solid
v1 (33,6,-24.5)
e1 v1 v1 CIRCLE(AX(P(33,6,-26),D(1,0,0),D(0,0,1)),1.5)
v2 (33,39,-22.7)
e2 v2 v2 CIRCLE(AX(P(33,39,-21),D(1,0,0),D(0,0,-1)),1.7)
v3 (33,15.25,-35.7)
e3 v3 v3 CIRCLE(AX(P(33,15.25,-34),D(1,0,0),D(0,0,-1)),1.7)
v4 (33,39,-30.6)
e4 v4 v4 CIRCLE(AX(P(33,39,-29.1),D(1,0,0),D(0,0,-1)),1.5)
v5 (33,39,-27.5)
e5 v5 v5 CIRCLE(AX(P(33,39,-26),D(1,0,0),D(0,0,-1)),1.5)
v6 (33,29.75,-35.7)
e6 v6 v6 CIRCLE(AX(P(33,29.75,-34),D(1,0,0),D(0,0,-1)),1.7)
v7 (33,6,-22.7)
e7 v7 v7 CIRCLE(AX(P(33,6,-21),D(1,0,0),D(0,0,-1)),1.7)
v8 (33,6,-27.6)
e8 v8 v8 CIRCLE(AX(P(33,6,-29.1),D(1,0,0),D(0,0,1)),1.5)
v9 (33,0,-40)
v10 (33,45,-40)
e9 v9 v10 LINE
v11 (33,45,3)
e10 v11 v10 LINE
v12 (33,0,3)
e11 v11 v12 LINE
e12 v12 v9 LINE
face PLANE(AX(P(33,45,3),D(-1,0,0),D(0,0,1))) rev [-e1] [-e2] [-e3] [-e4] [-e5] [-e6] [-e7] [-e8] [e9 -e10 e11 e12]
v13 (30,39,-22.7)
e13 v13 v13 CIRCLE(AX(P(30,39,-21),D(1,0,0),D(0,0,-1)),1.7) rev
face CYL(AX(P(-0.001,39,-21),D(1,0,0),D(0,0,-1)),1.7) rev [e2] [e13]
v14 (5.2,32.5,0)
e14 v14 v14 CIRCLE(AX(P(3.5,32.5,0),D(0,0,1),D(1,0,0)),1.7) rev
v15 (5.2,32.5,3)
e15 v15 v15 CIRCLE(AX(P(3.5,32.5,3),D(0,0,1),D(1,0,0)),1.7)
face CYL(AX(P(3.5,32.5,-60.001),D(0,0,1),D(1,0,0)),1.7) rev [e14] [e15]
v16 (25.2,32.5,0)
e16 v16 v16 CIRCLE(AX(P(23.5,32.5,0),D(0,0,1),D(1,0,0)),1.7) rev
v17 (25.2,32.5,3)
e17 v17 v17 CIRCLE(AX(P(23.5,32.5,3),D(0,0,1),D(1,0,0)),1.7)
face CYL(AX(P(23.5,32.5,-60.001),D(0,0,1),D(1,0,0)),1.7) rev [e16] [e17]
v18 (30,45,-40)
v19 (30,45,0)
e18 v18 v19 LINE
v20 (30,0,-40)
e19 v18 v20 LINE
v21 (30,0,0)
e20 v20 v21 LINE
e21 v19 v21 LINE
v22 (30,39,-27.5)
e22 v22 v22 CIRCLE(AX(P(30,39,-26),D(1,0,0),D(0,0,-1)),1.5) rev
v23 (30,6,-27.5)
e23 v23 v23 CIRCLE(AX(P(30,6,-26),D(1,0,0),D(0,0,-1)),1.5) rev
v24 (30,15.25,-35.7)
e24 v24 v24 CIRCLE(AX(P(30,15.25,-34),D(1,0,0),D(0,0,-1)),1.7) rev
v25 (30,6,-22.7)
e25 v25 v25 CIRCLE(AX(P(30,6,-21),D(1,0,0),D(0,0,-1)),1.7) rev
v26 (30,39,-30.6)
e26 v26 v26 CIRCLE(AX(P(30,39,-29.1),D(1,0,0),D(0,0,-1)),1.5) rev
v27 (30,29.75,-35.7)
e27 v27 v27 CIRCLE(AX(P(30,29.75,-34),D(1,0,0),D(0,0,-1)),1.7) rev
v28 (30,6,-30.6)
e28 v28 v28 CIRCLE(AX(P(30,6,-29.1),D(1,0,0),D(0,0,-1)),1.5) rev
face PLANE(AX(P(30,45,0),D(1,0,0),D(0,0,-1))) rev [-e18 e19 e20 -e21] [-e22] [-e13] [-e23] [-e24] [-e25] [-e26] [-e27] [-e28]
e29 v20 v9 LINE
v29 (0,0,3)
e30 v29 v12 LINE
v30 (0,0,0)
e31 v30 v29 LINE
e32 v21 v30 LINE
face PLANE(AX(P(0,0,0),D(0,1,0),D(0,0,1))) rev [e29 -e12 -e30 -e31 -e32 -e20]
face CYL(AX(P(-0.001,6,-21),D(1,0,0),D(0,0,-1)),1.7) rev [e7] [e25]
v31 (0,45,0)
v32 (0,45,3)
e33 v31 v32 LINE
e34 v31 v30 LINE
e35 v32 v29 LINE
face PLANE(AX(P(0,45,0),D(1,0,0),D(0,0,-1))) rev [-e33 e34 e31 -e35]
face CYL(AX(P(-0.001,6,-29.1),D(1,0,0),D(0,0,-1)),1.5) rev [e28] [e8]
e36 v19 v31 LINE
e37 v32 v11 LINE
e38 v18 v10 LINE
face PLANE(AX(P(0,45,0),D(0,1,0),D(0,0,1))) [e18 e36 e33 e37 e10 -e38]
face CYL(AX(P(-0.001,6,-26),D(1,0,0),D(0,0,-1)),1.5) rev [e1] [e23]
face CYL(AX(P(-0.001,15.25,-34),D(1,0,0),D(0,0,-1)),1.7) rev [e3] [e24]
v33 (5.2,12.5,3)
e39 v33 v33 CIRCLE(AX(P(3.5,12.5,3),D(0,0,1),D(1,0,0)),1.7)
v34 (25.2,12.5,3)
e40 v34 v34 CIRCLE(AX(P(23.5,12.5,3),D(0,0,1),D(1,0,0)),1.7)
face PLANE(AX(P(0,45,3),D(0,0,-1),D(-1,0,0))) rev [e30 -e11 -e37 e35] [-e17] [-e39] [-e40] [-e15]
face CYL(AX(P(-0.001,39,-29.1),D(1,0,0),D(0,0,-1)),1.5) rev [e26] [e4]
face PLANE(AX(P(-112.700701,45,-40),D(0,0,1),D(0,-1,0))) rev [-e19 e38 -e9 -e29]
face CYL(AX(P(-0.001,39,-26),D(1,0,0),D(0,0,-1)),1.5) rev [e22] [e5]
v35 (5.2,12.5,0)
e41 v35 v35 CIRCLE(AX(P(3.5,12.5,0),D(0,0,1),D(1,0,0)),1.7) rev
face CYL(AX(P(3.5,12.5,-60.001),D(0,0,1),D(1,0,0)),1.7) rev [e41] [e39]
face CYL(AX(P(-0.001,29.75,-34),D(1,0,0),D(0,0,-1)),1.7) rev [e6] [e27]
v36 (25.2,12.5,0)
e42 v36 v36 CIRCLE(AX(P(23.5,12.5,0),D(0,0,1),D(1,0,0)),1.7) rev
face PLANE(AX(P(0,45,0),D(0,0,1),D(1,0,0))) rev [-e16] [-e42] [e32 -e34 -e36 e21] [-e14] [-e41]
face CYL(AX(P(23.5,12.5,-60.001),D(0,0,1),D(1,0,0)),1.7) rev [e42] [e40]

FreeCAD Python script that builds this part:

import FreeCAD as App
import Part
import Sketcher

V = App.Vector


def add_polygon(sketch, points):
    """Adds a closed chain of lines whose ends are joined by coincident constraints."""
    first, n = sketch.GeometryCount, len(points)
    for a, b in zip(points, points[1:] + points[:1]):
        sketch.addGeometry(Part.LineSegment(App.Vector(*a, 0), App.Vector(*b, 0)), False)
    for i in range(n):
        sketch.addConstraint(Sketcher.Constraint("Coincident", first + i, 2, first + (i + 1) % n, 1))

doc = App.newDocument("Part")
body = doc.addObject("PartDesign::Body", "Body")

# Sketch on XZ plane
sketch1 = body.newObject("Sketcher::SketchObject", "Sketch")
sketch1.AttachmentSupport = (doc.getObject("XZ_Plane"), [""])
sketch1.MapMode = "FlatFace"
add_polygon(sketch1, [(30, 0), (0, 0), (0, 3), (33, 3), (33, -60), (30, -60)])  # lines 0-5
sketch1.addConstraint(Sketcher.Constraint("Horizontal", 0))
sketch1.addConstraint(Sketcher.Constraint("Vertical", 1))
sketch1.addConstraint(Sketcher.Constraint("Horizontal", 2))
sketch1.addConstraint(Sketcher.Constraint("Vertical", 3))
sketch1.addConstraint(Sketcher.Constraint("Horizontal", 4))
sketch1.addConstraint(Sketcher.Constraint("Vertical", 5))
sketch1.addConstraint(Sketcher.Constraint("Coincident", 0, 2, -1, 1))
sketch1.addConstraint(Sketcher.Constraint("Equal", 4, 1))
sketch1.addConstraint(Sketcher.Constraint("DistanceX", 0, 2, 0, 1, 30.0))
sketch1.addConstraint(Sketcher.Constraint("DistanceX", 2, 1, 2, 2, 33.0))
sketch1.addConstraint(Sketcher.Constraint("DistanceY", 3, 2, 3, 1, 63.0))
pad1 = body.newObject("PartDesign::Pad", "Pad")
pad1.Profile = sketch1
pad1.Length = 45
pad1.Reversed = True

# Sketch on XY plane
sketch2 = body.newObject("Sketcher::SketchObject", "Sketch001")
sketch2.AttachmentSupport = (doc.getObject("XY_Plane"), [""])
sketch2.MapMode = "FlatFace"
sketch2.AttachmentOffset = App.Placement(V(0, 0, 3), App.Rotation())
sketch2.addGeometry(Part.Circle(V(3.5, 32.5, 0), V(0, 0, 1), 1.7), False)
sketch2.addConstraint(Sketcher.Constraint("Diameter", 0, 3.4))
sketch2.addConstraint(Sketcher.Constraint("DistanceX", -1, 1, 0, 3, 3.5))
sketch2.addConstraint(Sketcher.Constraint("DistanceY", -1, 1, 0, 3, 32.5))
pocket1 = body.newObject("PartDesign::Pocket", "Pocket")
pocket1.Profile = sketch2
pocket1.Type = "UpToFirst"

# Sketch on XY plane
sketch3 = body.newObject("Sketcher::SketchObject", "Sketch002")
sketch3.AttachmentSupport = (doc.getObject("XY_Plane"), [""])
sketch3.MapMode = "FlatFace"
sketch3.AttachmentOffset = App.Placement(V(0, 0, 3), App.Rotation())
sketch3.addGeometry(Part.Circle(V(23.5, 32.5, 0), V(0, 0, 1), 1.7), False)
sketch3.addConstraint(Sketcher.Constraint("Diameter", 0, 3.4))
sketch3.addConstraint(Sketcher.Constraint("DistanceX", -1, 1, 0, 3, 23.5))
sketch3.addConstraint(Sketcher.Constraint("DistanceY", -1, 1, 0, 3, 32.5))
pocket2 = body.newObject("PartDesign::Pocket", "Pocket001")
pocket2.Profile = sketch3
pocket2.Type = "UpToFirst"

# Sketch on XY plane
sketch4 = body.newObject("Sketcher::SketchObject", "Sketch003")
sketch4.AttachmentSupport = (doc.getObject("XY_Plane"), [""])
sketch4.MapMode = "FlatFace"
sketch4.AttachmentOffset = App.Placement(V(0, 0, 3), App.Rotation())
sketch4.addGeometry(Part.Circle(V(23.5, 12.5, 0), V(0, 0, 1), 1.7), False)
sketch4.addConstraint(Sketcher.Constraint("Diameter", 0, 3.4))
sketch4.addConstraint(Sketcher.Constraint("DistanceX", -1, 1, 0, 3, 23.5))
sketch4.addConstraint(Sketcher.Constraint("DistanceY", -1, 1, 0, 3, 12.5))
pocket3 = body.newObject("PartDesign::Pocket", "Pocket002")
pocket3.Profile = sketch4
pocket3.Type = "UpToFirst"

# Sketch on XY plane
sketch5 = body.newObject("Sketcher::SketchObject", "Sketch004")
sketch5.AttachmentSupport = (doc.getObject("XY_Plane"), [""])
sketch5.MapMode = "FlatFace"
sketch5.AttachmentOffset = App.Placement(V(0, 0, 3), App.Rotation())
sketch5.addGeometry(Part.Circle(V(3.5, 12.5, 0), V(0, 0, 1), 1.7), False)
sketch5.addConstraint(Sketcher.Constraint("Diameter", 0, 3.4))
sketch5.addConstraint(Sketcher.Constraint("DistanceX", -1, 1, 0, 3, 3.5))
sketch5.addConstraint(Sketcher.Constraint("DistanceY", -1, 1, 0, 3, 12.5))
pocket4 = body.newObject("PartDesign::Pocket", "Pocket003")
pocket4.Profile = sketch5
pocket4.Type = "UpToFirst"

# Sketch on YZ plane
sketch6 = body.newObject("Sketcher::SketchObject", "Sketch005")
sketch6.AttachmentSupport = (doc.getObject("YZ_Plane"), [""])
sketch6.MapMode = "FlatFace"
sketch6.AttachmentOffset = App.Placement(V(0, 0, 33), App.Rotation())
sketch6.addGeometry(Part.Circle(V(6, -21, 0), V(0, 0, 1), 1.7), False)
sketch6.addConstraint(Sketcher.Constraint("Diameter", 0, 3.4))
sketch6.addConstraint(Sketcher.Constraint("DistanceX", -1, 1, 0, 3, 6.0))
sketch6.addConstraint(Sketcher.Constraint("DistanceY", 0, 3, -1, 1, 21.0))
pocket5 = body.newObject("PartDesign::Pocket", "Pocket004")
pocket5.Profile = sketch6
pocket5.Type = "UpToFirst"

# Sketch on YZ plane
sketch7 = body.newObject("Sketcher::SketchObject", "Sketch006")
sketch7.AttachmentSupport = (doc.getObject("YZ_Plane"), [""])
sketch7.MapMode = "FlatFace"
sketch7.AttachmentOffset = App.Placement(V(0, 0, 33), App.Rotation())
sketch7.addGeometry(Part.Circle(V(39, -21, 0), V(0, 0, 1), 1.7), False)
sketch7.addConstraint(Sketcher.Constraint("Diameter", 0, 3.4))
sketch7.addConstraint(Sketcher.Constraint("DistanceX", -1, 1, 0, 3, 39.0))
sketch7.addConstraint(Sketcher.Constraint("DistanceY", 0, 3, -1, 1, 21.0))
pocket6 = body.newObject("PartDesign::Pocket", "Pocket005")
pocket6.Profile = sketch7
pocket6.Type = "UpToFirst"

# Sketch on YZ plane
sketch8 = body.newObject("Sketcher::SketchObject", "Sketch007")
sketch8.AttachmentSupport = (doc.getObject("YZ_Plane"), [""])
sketch8.MapMode = "FlatFace"
sketch8.AttachmentOffset = App.Placement(V(0, 0, 33), App.Rotation())
sketch8.addGeometry(Part.Circle(V(15.2, -34, 0), V(0, 0, 1), 1.7), False)
sketch8.addConstraint(Sketcher.Constraint("Diameter", 0, 3.4))
sketch8.addConstraint(Sketcher.Constraint("DistanceY", 0, 3, -1, 1, 34.0))
sketch8.addConstraint(Sketcher.Constraint("DistanceX", -1, 1, 0, 3, 15.25))
pocket7 = body.newObject("PartDesign::Pocket", "Pocket006")
pocket7.Profile = sketch8
pocket7.Type = "UpToFirst"

# Sketch on YZ plane
sketch9 = body.newObject("Sketcher::SketchObject", "Sketch008")
sketch9.AttachmentSupport = (doc.getObject("YZ_Plane"), [""])
sketch9.MapMode = "FlatFace"
sketch9.AttachmentOffset = App.Placement(V(0, 0, 33), App.Rotation())
sketch9.addGeometry(Part.Circle(V(29.8, -34, 0), V(0, 0, 1), 1.7), False)
sketch9.addConstraint(Sketcher.Constraint("Diameter", 0, 3.4))
sketch9.addConstraint(Sketcher.Constraint("DistanceY", 0, 3, -1, 1, 34.0))
sketch9.addConstraint(Sketcher.Constraint("DistanceX", -1, 1, 0, 3, 29.75))
pocket8 = body.newObject("PartDesign::Pocket", "Pocket007")
pocket8.Profile = sketch9
pocket8.Type = "UpToFirst"

# Sketch on YZ plane
sketch10 = body.newObject("Sketcher::SketchObject", "Sketch009")
sketch10.AttachmentSupport = (doc.getObject("YZ_Plane"), [""])
sketch10.MapMode = "FlatFace"
sketch10.AttachmentOffset = App.Placement(V(0, 0, 33), App.Rotation())
sketch10.addGeometry(Part.Circle(V(39, -26, 0), V(0, 0, 1), 1.5), False)
sketch10.addConstraint(Sketcher.Constraint("Diameter", 0, 3.0))
sketch10.addConstraint(Sketcher.Constraint("DistanceX", -1, 1, 0, 3, 39.0))
sketch10.addConstraint(Sketcher.Constraint("DistanceY", 0, 3, -1, 1, 26.0))
pocket9 = body.newObject("PartDesign::Pocket", "Pocket008")
pocket9.Profile = sketch10
pocket9.Type = "UpToFirst"

# Sketch on YZ plane
sketch11 = body.newObject("Sketcher::SketchObject", "Sketch010")
sketch11.AttachmentSupport = (doc.getObject("YZ_Plane"), [""])
sketch11.MapMode = "FlatFace"
sketch11.AttachmentOffset = App.Placement(V(0, 0, 33), App.Rotation())
sketch11.addGeometry(Part.Circle(V(6, -29.1, 0), V(0, 0, 1), 1.5), False)
sketch11.addConstraint(Sketcher.Constraint("Diameter", 0, 3.0))
sketch11.addConstraint(Sketcher.Constraint("DistanceX", -1, 1, 0, 3, 6.0))
sketch11.addConstraint(Sketcher.Constraint("DistanceY", 0, 3, -1, 1, 29.1))
pocket10 = body.newObject("PartDesign::Pocket", "Pocket009")
pocket10.Profile = sketch11
pocket10.Type = "UpToFirst"

# Sketch on YZ plane
sketch12 = body.newObject("Sketcher::SketchObject", "Sketch011")
sketch12.AttachmentSupport = (doc.getObject("YZ_Plane"), [""])
sketch12.MapMode = "FlatFace"
sketch12.AttachmentOffset = App.Placement(V(0, 0, 33), App.Rotation())
sketch12.addGeometry(Part.Circle(V(39, -29.1, 0), V(0, 0, 1), 1.5), False)
sketch12.addConstraint(Sketcher.Constraint("Diameter", 0, 3.0))
sketch12.addConstraint(Sketcher.Constraint("DistanceX", -1, 1, 0, 3, 39.0))
sketch12.addConstraint(Sketcher.Constraint("DistanceY", 0, 3, -1, 1, 29.1))
pocket11 = body.newObject("PartDesign::Pocket", "Pocket010")
pocket11.Profile = sketch12
pocket11.Type = "UpToFirst"

# Sketch on YZ plane
sketch13 = body.newObject("Sketcher::SketchObject", "Sketch012")
sketch13.AttachmentSupport = (doc.getObject("YZ_Plane"), [""])
sketch13.MapMode = "FlatFace"
sketch13.AttachmentOffset = App.Placement(V(0, 0, 33), App.Rotation())
sketch13.addGeometry(Part.Circle(V(6, -26, 0), V(0, 0, 1), 1.5), False)
sketch13.addConstraint(Sketcher.Constraint("Diameter", 0, 3.0))
sketch13.addConstraint(Sketcher.Constraint("DistanceX", -1, 1, 0, 3, 6.0))
sketch13.addConstraint(Sketcher.Constraint("DistanceY", 0, 3, -1, 1, 26.0))
pocket12 = body.newObject("PartDesign::Pocket", "Pocket011")
pocket12.Profile = sketch13
pocket12.Type = "UpToFirst"

# Sketch on YZ plane
sketch14 = body.newObject("Sketcher::SketchObject", "Sketch013")
sketch14.AttachmentSupport = (doc.getObject("YZ_Plane"), [""])
sketch14.MapMode = "FlatFace"
sketch14.AttachmentOffset = App.Placement(V(0, 0, 30), App.Rotation())
add_polygon(sketch14, [(-134, -40), (179, -40), (179, -309), (-134, -309)])  # lines 0-3
sketch14.addConstraint(Sketcher.Constraint("Horizontal", 0))
sketch14.addConstraint(Sketcher.Constraint("Vertical", 1))
sketch14.addConstraint(Sketcher.Constraint("Horizontal", 2))
sketch14.addConstraint(Sketcher.Constraint("Vertical", 3))
sketch14.addConstraint(Sketcher.Constraint("DistanceY", 0, 2, -1, 1, 40.0))
sketch14.addConstraint(Sketcher.Constraint("DistanceX", 0, 1, 0, 2, 313.965861))
sketch14.addConstraint(Sketcher.Constraint("DistanceY", 1, 2, 1, 1, 268.965861))
sketch14.addConstraint(Sketcher.Constraint("DistanceX", -1, 1, 0, 2, 179.482931))
pocket13 = body.newObject("PartDesign::Pocket", "Pocket012")
pocket13.Profile = sketch14
pocket13.Type = "ThroughAll"
pocket13.Midplane = True

doc.recompute()
